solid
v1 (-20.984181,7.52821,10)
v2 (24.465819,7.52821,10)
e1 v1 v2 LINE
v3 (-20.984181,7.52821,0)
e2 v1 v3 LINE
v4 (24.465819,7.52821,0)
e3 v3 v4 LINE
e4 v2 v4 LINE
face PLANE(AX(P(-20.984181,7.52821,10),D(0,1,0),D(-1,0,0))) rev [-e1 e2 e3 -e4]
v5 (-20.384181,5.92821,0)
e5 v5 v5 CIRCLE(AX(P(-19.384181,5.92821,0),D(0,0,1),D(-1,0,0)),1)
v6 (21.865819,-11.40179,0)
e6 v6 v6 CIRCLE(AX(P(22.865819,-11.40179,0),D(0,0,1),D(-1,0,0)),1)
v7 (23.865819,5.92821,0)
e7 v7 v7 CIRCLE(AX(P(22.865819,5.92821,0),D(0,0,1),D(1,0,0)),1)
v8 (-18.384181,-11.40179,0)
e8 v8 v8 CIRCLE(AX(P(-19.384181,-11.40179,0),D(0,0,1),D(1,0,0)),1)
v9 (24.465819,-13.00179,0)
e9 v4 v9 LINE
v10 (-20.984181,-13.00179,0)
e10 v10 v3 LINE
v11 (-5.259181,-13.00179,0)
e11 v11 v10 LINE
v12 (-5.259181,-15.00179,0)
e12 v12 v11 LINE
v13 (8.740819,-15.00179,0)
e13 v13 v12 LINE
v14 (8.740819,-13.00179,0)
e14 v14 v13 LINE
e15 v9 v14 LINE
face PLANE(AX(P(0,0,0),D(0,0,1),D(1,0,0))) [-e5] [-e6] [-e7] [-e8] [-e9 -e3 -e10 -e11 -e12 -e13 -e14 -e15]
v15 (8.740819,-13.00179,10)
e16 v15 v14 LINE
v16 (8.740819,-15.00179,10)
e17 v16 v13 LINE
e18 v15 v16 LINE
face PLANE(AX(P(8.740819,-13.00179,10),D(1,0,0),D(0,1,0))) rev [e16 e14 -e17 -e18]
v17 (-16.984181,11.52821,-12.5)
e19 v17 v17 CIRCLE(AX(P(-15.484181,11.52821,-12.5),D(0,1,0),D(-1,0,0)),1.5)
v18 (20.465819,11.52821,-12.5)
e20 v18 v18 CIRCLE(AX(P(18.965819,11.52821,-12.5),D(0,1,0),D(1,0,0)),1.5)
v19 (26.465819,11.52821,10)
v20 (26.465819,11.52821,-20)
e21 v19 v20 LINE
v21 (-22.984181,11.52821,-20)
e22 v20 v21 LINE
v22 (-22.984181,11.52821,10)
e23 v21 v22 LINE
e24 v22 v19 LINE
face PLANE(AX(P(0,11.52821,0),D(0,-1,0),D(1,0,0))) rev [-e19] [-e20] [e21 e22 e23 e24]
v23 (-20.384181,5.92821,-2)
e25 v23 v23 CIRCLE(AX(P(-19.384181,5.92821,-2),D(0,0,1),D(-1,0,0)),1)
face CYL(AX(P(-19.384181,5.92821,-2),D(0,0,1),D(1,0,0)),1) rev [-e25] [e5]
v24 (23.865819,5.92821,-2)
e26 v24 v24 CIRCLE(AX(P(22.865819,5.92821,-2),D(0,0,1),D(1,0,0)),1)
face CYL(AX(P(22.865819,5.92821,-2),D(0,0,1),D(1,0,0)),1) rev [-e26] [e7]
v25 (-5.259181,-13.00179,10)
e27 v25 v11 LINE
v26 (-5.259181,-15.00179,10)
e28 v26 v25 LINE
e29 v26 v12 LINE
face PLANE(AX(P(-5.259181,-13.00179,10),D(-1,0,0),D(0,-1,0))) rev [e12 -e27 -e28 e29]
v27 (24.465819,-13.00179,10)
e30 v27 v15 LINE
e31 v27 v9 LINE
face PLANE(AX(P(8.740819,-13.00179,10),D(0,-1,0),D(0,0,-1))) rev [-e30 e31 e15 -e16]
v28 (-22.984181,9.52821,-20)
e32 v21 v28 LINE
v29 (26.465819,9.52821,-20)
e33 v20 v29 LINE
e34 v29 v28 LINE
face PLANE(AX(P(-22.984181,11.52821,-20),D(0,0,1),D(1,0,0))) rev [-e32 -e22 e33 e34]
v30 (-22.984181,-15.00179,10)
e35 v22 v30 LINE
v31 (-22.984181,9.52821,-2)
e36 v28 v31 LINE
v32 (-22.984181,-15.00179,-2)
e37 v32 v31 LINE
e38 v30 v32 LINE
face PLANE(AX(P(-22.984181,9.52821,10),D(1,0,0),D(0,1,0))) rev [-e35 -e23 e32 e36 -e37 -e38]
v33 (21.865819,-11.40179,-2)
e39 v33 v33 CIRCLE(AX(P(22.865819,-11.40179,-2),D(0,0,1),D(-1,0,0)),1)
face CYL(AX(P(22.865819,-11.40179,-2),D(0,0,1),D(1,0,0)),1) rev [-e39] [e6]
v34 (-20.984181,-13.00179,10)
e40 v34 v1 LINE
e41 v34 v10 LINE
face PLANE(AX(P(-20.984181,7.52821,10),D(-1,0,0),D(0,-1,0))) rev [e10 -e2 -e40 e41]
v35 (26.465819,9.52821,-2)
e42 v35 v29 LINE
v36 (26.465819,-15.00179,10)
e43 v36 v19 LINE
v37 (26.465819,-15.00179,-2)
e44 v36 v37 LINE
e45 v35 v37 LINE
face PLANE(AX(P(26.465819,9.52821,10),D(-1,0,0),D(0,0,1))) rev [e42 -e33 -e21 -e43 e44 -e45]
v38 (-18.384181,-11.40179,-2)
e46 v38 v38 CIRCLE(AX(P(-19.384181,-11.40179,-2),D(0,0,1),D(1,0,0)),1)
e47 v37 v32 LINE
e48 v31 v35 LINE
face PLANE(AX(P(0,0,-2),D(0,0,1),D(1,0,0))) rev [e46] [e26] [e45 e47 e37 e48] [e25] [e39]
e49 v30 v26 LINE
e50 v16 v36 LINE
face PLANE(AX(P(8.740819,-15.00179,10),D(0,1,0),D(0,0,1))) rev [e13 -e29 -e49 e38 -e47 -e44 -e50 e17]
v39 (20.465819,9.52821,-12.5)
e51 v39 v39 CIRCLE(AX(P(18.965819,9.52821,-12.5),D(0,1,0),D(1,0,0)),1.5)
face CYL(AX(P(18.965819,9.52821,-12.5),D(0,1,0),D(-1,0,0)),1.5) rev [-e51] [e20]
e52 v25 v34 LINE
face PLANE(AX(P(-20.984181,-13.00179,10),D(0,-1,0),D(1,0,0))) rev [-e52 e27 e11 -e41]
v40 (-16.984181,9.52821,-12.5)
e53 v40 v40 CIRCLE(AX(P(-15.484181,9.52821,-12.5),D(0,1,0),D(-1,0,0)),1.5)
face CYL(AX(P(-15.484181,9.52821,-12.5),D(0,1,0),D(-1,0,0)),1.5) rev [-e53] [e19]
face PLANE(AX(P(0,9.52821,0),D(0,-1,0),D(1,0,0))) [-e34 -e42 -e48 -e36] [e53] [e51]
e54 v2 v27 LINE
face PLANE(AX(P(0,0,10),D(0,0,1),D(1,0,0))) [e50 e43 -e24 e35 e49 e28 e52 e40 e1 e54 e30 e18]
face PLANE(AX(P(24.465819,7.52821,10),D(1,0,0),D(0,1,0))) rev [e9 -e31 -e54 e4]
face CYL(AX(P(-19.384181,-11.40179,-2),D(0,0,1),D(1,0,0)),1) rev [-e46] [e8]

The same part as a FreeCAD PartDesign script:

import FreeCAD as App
import Part
import Sketcher
from FreeCAD import Vector

doc = App.newDocument("Part")
body = doc.addObject("PartDesign::Body", "Body")

sketch1 = body.newObject("Sketcher::SketchObject", "Sketch")
sketch1.AttachmentSupport = (doc.getObject("XY_Plane"), [""])
sketch1.MapMode = "FlatFace"
sketch1.addGeometry([
    Part.LineSegment(Vector(8.7, -15, 0), Vector(26.5, -15, 0)),
    Part.LineSegment(Vector(26.5, -15, 0), Vector(26.5, 9.5, 0)),
    Part.LineSegment(Vector(26.5, 9.5, 0), Vector(-23, 9.5, 0)),
    Part.LineSegment(Vector(-23, 9.5, 0), Vector(-23, -15, 0)),
    Part.LineSegment(Vector(-23, -15, 0), Vector(-5.3, -15, 0)),
    Part.LineSegment(Vector(-5.3, -15, 0), Vector(-5.3, -13, 0)),
    Part.LineSegment(Vector(-5.3, -13, 0), Vector(-21, -13, 0)),
    Part.LineSegment(Vector(-21, -13, 0), Vector(-21, 7.5, 0)),
    Part.LineSegment(Vector(-21, 7.5, 0), Vector(24.5, 7.5, 0)),
    Part.LineSegment(Vector(24.5, 7.5, 0), Vector(24.5, -13, 0)),
    Part.LineSegment(Vector(24.5, -13, 0), Vector(8.7, -13, 0)),
    Part.LineSegment(Vector(8.7, -13, 0), Vector(8.7, -15, 0)),
], False)
sketch1.addConstraint([
    Sketcher.Constraint("Coincident", 0, 2, 1, 1),
    Sketcher.Constraint("Coincident", 1, 2, 2, 1),
    Sketcher.Constraint("Coincident", 2, 2, 3, 1),
    Sketcher.Constraint("Coincident", 3, 2, 4, 1),
    Sketcher.Constraint("Coincident", 4, 2, 5, 1),
    Sketcher.Constraint("Coincident", 5, 2, 6, 1),
    Sketcher.Constraint("Coincident", 6, 2, 7, 1),
    Sketcher.Constraint("Coincident", 7, 2, 8, 1),
    Sketcher.Constraint("Coincident", 8, 2, 9, 1),
    Sketcher.Constraint("Coincident", 9, 2, 10, 1),
    Sketcher.Constraint("Coincident", 10, 2, 11, 1),
    Sketcher.Constraint("Coincident", 11, 2, 0, 1),
    Sketcher.Constraint("Horizontal", 0),
    Sketcher.Constraint("Vertical", 1),
    Sketcher.Constraint("Horizontal", 2),
    Sketcher.Constraint("Vertical", 3),
    Sketcher.Constraint("Horizontal", 4),
    Sketcher.Constraint("Vertical", 5),
    Sketcher.Constraint("Horizontal", 6),
    Sketcher.Constraint("Vertical", 7),
    Sketcher.Constraint("Horizontal", 8),
    Sketcher.Constraint("Vertical", 9),
    Sketcher.Constraint("Horizontal", 10),
    Sketcher.Constraint("Vertical", 11),
    Sketcher.Constraint("Horizontal", 0, 2, 3, 2),
    Sketcher.Constraint("Horizontal", 6, 2, 9, 2),
    Sketcher.Constraint("Equal", 0, 4),
    Sketcher.Constraint("Equal", 6, 10),
    Sketcher.Constraint("DistanceY", 5, 1, 5, 2, 2.0),
    Sketcher.Constraint("DistanceX", 3, 2, 6, 2, 2.0),
    Sketcher.Constraint("DistanceY", 7, 2, 2, 2, 2.0),
    Sketcher.Constraint("DistanceX", 5, 2, 10, 2, 14.0),
    Sketcher.Constraint("DistanceX", 2, 2, 2, 1, 49.45),
    Sketcher.Constraint("DistanceY", 1, 1, 1, 2, 24.53),
    Sketcher.Constraint("DistanceX", -1, 1, 0, 2, 26.465819),
    Sketcher.Constraint("DistanceY", 0, 2, -1, 1, 15.00179),
])
pad1 = body.newObject("PartDesign::Pad", "Pad")
pad1.Profile = sketch1
pad1.Length = 10

sketch2 = body.newObject("Sketcher::SketchObject", "Sketch001")
sketch2.AttachmentSupport = (doc.getObject("XY_Plane"), [""])
sketch2.MapMode = "FlatFace"
sketch2.addGeometry([
    Part.LineSegment(Vector(26, 10, 0), Vector(26, -15, 0)),
    Part.LineSegment(Vector(26, -15, 0), Vector(-23, -15, 0)),
    Part.LineSegment(Vector(-23, -15, 0), Vector(-23, 10, 0)),
    Part.LineSegment(Vector(-23, 10, 0), Vector(26, 10, 0)),
], False)
sketch2.addConstraint([
    Sketcher.Constraint("Coincident", 0, 2, 1, 1),
    Sketcher.Constraint("Coincident", 1, 2, 2, 1),
    Sketcher.Constraint("Coincident", 2, 2, 3, 1),
    Sketcher.Constraint("Coincident", 3, 2, 0, 1),
    Sketcher.Constraint("Vertical", 0),
    Sketcher.Constraint("Horizontal", 1),
    Sketcher.Constraint("Vertical", 2),
    Sketcher.Constraint("Horizontal", 3),
    Sketcher.Constraint("DistanceX", 1, 2, 1, 1, 49.45),
    Sketcher.Constraint("DistanceY", 0, 2, 0, 1, 24.53),
    Sketcher.Constraint("DistanceX", -1, 1, 0, 2, 26.465819),
    Sketcher.Constraint("DistanceY", 0, 2, -1, 1, 15.00179),
])
pad2 = body.newObject("PartDesign::Pad", "Pad001")
pad2.Profile = sketch2
pad2.Length = 2
pad2.Reversed = True

sketch3 = body.newObject("Sketcher::SketchObject", "Sketch002")
sketch3.AttachmentSupport = (doc.getObject("XY_Plane"), [""])
sketch3.MapMode = "FlatFace"
sketch3.addGeometry([
    Part.Circle(Vector(-19.4, -11.4, 0), Vector(0, 0, 1), 1),
    Part.Circle(Vector(22.9, -11.4, 0), Vector(0, 0, 1), 1),
    Part.Circle(Vector(22.9, 5.9, 0), Vector(0, 0, 1), 1),
    Part.Circle(Vector(-19.4, 5.9, 0), Vector(0, 0, 1), 1),
], False)
sketch3.addConstraint([
    Sketcher.Constraint("Equal", 0, 1),
    Sketcher.Constraint("Equal", 1, 2),
    Sketcher.Constraint("Equal", 2, 3),
    Sketcher.Constraint("Horizontal", 0, 3, 1, 3),
    Sketcher.Constraint("Horizontal", 2, 3, 3, 3),
    Sketcher.Constraint("Vertical", 1, 3, 2, 3),
    Sketcher.Constraint("Vertical", 0, 3, 3, 3),
    Sketcher.Constraint("Diameter", 0, 2.0),
    Sketcher.Constraint("DistanceX", 0, 3, 1, 3, 42.25),
    Sketcher.Constraint("DistanceY", 1, 3, 2, 3, 17.33),
    Sketcher.Constraint("DistanceX", 0, 3, -1, 1, 19.384181),
    Sketcher.Constraint("DistanceY", 0, 3, -1, 1, 11.40179),
])
pocket1 = body.newObject("PartDesign::Pocket", "Pocket")
pocket1.Profile = sketch3
pocket1.Length = 2

sketch4 = body.newObject("Sketcher::SketchObject", "Sketch003")
sketch4.AttachmentSupport = (doc.getObject("XZ_Plane"), [""])
sketch4.MapMode = "FlatFace"
sketch4.AttachmentOffset = App.Placement(Vector(0, 0, -9.52821), App.Rotation())
sketch4.addGeometry([
    Part.LineSegment(Vector(-23, -20, 0), Vector(-23, 10, 0)),
    Part.LineSegment(Vector(-23, 10, 0), Vector(26, 10, 0)),
    Part.LineSegment(Vector(26, 10, 0), Vector(26, -20, 0)),
    Part.LineSegment(Vector(26, -20, 0), Vector(-23, -20, 0)),
], False)
sketch4.addConstraint([
    Sketcher.Constraint("Coincident", 0, 2, 1, 1),
    Sketcher.Constraint("Coincident", 1, 2, 2, 1),
    Sketcher.Constraint("Coincident", 2, 2, 3, 1),
    Sketcher.Constraint("Coincident", 3, 2, 0, 1),
    Sketcher.Constraint("Vertical", 0),
    Sketcher.Constraint("Horizontal", 1),
    Sketcher.Constraint("Vertical", 2),
    Sketcher.Constraint("Horizontal", 3),
    Sketcher.Constraint("DistanceY", 0, 1, 0, 2, 30.0),
    Sketcher.Constraint("DistanceY", -1, 1, 0, 2, 10.0),
    Sketcher.Constraint("DistanceX", 1, 1, 1, 2, 49.45),
    Sketcher.Constraint("DistanceX", 0, 2, -1, 1, 22.984181),
])
pad3 = body.newObject("PartDesign::Pad", "Pad002")
pad3.Profile = sketch4
pad3.Length = 2
pad3.Reversed = True

sketch5 = body.newObject("Sketcher::SketchObject", "Sketch004")
sketch5.AttachmentSupport = (doc.getObject("XZ_Plane"), [""])
sketch5.MapMode = "FlatFace"
sketch5.AttachmentOffset = App.Placement(Vector(0, 0, -11.52821), App.Rotation())
sketch5.addGeometry([
    Part.Circle(Vector(-15.5, -12.5, 0), Vector(0, 0, 1), 1.5),
    Part.Circle(Vector(19, -12.5, 0), Vector(0, 0, 1), 1.5),
], False)
sketch5.addConstraint([
    Sketcher.Constraint("Equal", 0, 1),
    Sketcher.Constraint("Horizontal", 0, 3, 1, 3),
    Sketcher.Constraint("Diameter", 0, 3.0),
    Sketcher.Constraint("DistanceY", 0, 3, -1, 1, 12.5),
    Sketcher.Constraint("DistanceX", 0, 3, 1, 3, 34.45),
    Sketcher.Constraint("DistanceX", 0, 3, -1, 1, 15.484181),
])
pocket2 = body.newObject("PartDesign::Pocket", "Pocket001")
pocket2.Profile = sketch5
pocket2.Length = 2
pocket2.Reversed = True

doc.recompute()
